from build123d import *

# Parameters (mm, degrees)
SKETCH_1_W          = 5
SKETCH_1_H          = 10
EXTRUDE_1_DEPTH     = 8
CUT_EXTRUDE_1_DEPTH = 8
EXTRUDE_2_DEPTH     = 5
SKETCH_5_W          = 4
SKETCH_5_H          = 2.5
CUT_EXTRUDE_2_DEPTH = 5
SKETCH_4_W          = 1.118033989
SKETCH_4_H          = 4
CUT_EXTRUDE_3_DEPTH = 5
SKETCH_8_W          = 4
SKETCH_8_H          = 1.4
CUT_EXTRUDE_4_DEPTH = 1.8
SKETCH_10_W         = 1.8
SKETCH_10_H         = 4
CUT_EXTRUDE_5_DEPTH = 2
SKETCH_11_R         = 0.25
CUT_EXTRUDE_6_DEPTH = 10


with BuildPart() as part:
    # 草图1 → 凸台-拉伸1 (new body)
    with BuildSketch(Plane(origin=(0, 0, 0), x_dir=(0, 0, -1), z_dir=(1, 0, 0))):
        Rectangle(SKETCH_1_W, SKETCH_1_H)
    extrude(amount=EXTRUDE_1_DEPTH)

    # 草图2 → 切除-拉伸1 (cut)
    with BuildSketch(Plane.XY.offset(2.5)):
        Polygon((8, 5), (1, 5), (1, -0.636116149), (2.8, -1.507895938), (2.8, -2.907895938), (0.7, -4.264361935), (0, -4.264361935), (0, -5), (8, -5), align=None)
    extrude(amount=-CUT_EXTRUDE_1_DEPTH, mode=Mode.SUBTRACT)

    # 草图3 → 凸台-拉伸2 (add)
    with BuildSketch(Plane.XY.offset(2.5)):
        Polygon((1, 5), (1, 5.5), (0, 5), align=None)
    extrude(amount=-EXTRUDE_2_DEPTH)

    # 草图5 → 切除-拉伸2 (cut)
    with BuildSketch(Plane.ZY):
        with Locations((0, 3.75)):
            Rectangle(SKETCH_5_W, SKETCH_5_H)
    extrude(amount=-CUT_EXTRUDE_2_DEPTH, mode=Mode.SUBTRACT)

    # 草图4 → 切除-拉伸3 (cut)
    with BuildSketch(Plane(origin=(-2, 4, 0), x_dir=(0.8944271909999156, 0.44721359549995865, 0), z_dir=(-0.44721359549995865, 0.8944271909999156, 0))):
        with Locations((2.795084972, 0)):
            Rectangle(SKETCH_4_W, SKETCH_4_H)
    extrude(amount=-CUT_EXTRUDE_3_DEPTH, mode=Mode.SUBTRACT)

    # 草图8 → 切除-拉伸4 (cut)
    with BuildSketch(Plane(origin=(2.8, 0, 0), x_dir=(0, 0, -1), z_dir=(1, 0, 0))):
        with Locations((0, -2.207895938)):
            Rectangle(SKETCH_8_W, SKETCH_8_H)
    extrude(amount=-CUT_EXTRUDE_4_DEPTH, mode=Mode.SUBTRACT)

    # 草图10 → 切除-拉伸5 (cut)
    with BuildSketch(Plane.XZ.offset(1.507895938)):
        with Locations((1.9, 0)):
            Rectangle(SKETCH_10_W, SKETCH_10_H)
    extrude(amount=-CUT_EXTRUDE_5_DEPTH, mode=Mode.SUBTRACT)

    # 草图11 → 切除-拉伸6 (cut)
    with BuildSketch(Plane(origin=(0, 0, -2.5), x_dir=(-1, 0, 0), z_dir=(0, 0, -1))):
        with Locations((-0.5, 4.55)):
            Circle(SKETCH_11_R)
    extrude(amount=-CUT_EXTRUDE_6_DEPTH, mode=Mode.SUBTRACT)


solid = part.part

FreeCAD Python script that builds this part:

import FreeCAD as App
import Part
import Sketcher
from FreeCAD import Vector


def add_polygon(sketch, points):
    """Adds a closed chain of lines whose ends are joined by coincident constraints."""
    first, n = sketch.GeometryCount, len(points)
    for a, b in zip(points, points[1:] + points[:1]):
        sketch.addGeometry(Part.LineSegment(App.Vector(*a, 0), App.Vector(*b, 0)), False)
    for i in range(n):
        sketch.addConstraint(Sketcher.Constraint("Coincident", first + i, 2, first + (i + 1) % n, 1))

doc = App.newDocument("Part")
body = doc.addObject("PartDesign::Body", "Body")

# Sketch on YZ plane
sketch1 = body.newObject("Sketcher::SketchObject", "Sketch")
sketch1.AttachmentSupport = (doc.getObject("YZ_Plane"), [""])
sketch1.MapMode = "FlatFace"
add_polygon(sketch1, [(5, 2), (-5, 2), (-5, -2), (5, -2)])  # lines 0-3
sketch1.addConstraint([
    Sketcher.Constraint("Horizontal", 0),
    Sketcher.Constraint("Vertical", 1),
    Sketcher.Constraint("Horizontal", 2),
    Sketcher.Constraint("Vertical", 3),
    Sketcher.Constraint("Symmetric", 0, 2, 2, 2, -1, 1),
    Sketcher.Constraint("DistanceX", 0, 2, 0, 1, 10.0),
    Sketcher.Constraint("DistanceY", 1, 2, 1, 1, 5.0),
])
pad1 = body.newObject("PartDesign::Pad", "Pad")
pad1.Profile = sketch1
pad1.Length = 8

# Sketch on XY plane
sketch2 = body.newObject("Sketcher::SketchObject", "Sketch001")
sketch2.AttachmentSupport = (doc.getObject("XY_Plane"), [""])
sketch2.MapMode = "FlatFace"
sketch2.AttachmentOffset = App.Placement(Vector(0, 0, 2.5), App.Rotation())
add_polygon(sketch2, [(8, 5), (1, 5), (1, -0.6), (2.8, -1.5), (2.8, -2.9), (0.7, -4.3), (0, -4.3), (0, -5), (8, -5)])  # lines 0-8
sketch2.addConstraint([
    Sketcher.Constraint("Horizontal", 0),
    Sketcher.Constraint("Vertical", 1),
    Sketcher.Constraint("Vertical", 3),
    Sketcher.Constraint("Horizontal", 5),
    Sketcher.Constraint("Vertical", 6),
    Sketcher.Constraint("Horizontal", 7),
    Sketcher.Constraint("Vertical", 8),
    Sketcher.Constraint("PointOnObject", 5, 2, -2),
    Sketcher.Constraint("DistanceX", 0, 2, 0, 1, 7.0),
    Sketcher.Constraint("DistanceX", 7, 1, 7, 2, 8.0),
    Sketcher.Constraint("DistanceY", 8, 1, 8, 2, 10.0),
    Sketcher.Constraint("Distance", 2, 2.0),
    Sketcher.Constraint("DistanceX", 5, 2, 5, 1, 0.7),
    Sketcher.Constraint("DistanceY", 3, 2, 3, 1, 1.4),
    Sketcher.Constraint("DistanceY", -1, 1, 0, 2, 5.0),
    Sketcher.Constraint("Distance", 4, 2.5),
    Sketcher.Constraint("DistanceX", -1, 1, 2, 2, 2.8),
    Sketcher.Constraint("DistanceY", 6, 2, 6, 1, 0.735638),
])
pocket1 = body.newObject("PartDesign::Pocket", "Pocket")
pocket1.Profile = sketch2
pocket1.Length = 8

# Sketch on XY plane
sketch3 = body.newObject("Sketcher::SketchObject", "Sketch002")
sketch3.AttachmentSupport = (doc.getObject("XY_Plane"), [""])
sketch3.MapMode = "FlatFace"
sketch3.AttachmentOffset = App.Placement(Vector(0, 0, 2.5), App.Rotation())
add_polygon(sketch3, [(1, 5), (1, 5.5), (0, 5)])  # lines 0-2
sketch3.addConstraint([
    Sketcher.Constraint("Vertical", 0),
    Sketcher.Constraint("Horizontal", 2),
    Sketcher.Constraint("PointOnObject", 1, 2, -2),
    Sketcher.Constraint("DistanceX", 2, 1, 2, 2, 1.0),
    Sketcher.Constraint("DistanceY", 0, 1, 0, 2, 0.5),
    Sketcher.Constraint("DistanceY", -1, 1, 1, 2, 5.0),
])
pad2 = body.newObject("PartDesign::Pad", "Pad001")
pad2.Profile = sketch3
pad2.Length = 5
pad2.Reversed = True

# Sketch on YZ plane
sketch4 = body.newObject("Sketcher::SketchObject", "Sketch003")
sketch4.AttachmentSupport = (doc.getObject("YZ_Plane"), [""])
sketch4.MapMode = "FlatFace"
add_polygon(sketch4, [(5, -2), (2.5, -2), (2.5, 2), (5, 2)])  # lines 0-3
sketch4.addConstraint([
    Sketcher.Constraint("Horizontal", 0),
    Sketcher.Constraint("Vertical", 1),
    Sketcher.Constraint("Horizontal", 2),
    Sketcher.Constraint("Vertical", 3),
    Sketcher.Constraint("DistanceY", 1, 1, 1, 2, 4.0),
    Sketcher.Constraint("DistanceX", 0, 2, 0, 1, 2.5),
    Sketcher.Constraint("DistanceY", 0, 2, -1, 1, 2.0),
    Sketcher.Constraint("DistanceX", -1, 1, 2, 2, 5.0),
])
pocket2 = body.newObject("PartDesign::Pocket", "Pocket001")
pocket2.Profile = sketch4
pocket2.Length = 5
pocket2.Reversed = True

# Sketch on an angled plane
sketch5 = body.newObject("Sketcher::SketchObject", "Sketch004")
sketch5.Placement = App.Placement(Vector(-2, 4, 0), App.Rotation(Vector(0.894427191, 0.447213595, 0), Vector(0, 0, -1), Vector(-0.447213595, 0.894427191, 0), "ZXY"))
add_polygon(sketch5, [(2.2, 2), (2.2, -2), (3.4, -2), (3.4, 2)])  # lines 0-3
sketch5.addConstraint([
    Sketcher.Constraint("Vertical", 0),
    Sketcher.Constraint("Horizontal", 1),
    Sketcher.Constraint("Vertical", 2),
    Sketcher.Constraint("Horizontal", 3),
    Sketcher.Constraint("DistanceY", 0, 2, 0, 1, 4.0),
    Sketcher.Constraint("DistanceY", 0, 2, -1, 1, 2.0),
    Sketcher.Constraint("DistanceX", -1, 1, 1, 2, 3.354102),
    Sketcher.Constraint("DistanceX", 1, 1, 1, 2, 1.118034),
])
pocket3 = body.newObject("PartDesign::Pocket", "Pocket002")
pocket3.Profile = sketch5
pocket3.Length = 5

# Sketch on YZ plane
sketch6 = body.newObject("Sketcher::SketchObject", "Sketch005")
sketch6.AttachmentSupport = (doc.getObject("YZ_Plane"), [""])
sketch6.MapMode = "FlatFace"
sketch6.AttachmentOffset = App.Placement(Vector(0, 0, 2.8), App.Rotation())
add_polygon(sketch6, [(-1.5, 2), (-2.9, 2), (-2.9, -2), (-1.5, -2)])  # lines 0-3
sketch6.addConstraint([
    Sketcher.Constraint("Horizontal", 0),
    Sketcher.Constraint("Vertical", 1),
    Sketcher.Constraint("Horizontal", 2),
    Sketcher.Constraint("Vertical", 3),
    Sketcher.Constraint("DistanceY", 1, 2, 1, 1, 4.0),
    Sketcher.Constraint("DistanceX", 0, 2, 0, 1, 1.4),
    Sketcher.Constraint("DistanceY", -1, 1, 0, 2, 2.0),
    Sketcher.Constraint("DistanceX", 0, 2, -1, 1, 2.907896),
])
pocket4 = body.newObject("PartDesign::Pocket", "Pocket003")
pocket4.Profile = sketch6
pocket4.Length = 1.8

# Sketch on XZ plane
sketch7 = body.newObject("Sketcher::SketchObject", "Sketch006")
sketch7.AttachmentSupport = (doc.getObject("XZ_Plane"), [""])
sketch7.MapMode = "FlatFace"
sketch7.AttachmentOffset = App.Placement(Vector(0, 0, 1.507896), App.Rotation())
add_polygon(sketch7, [(1, 2), (1, -2), (2.8, -2), (2.8, 2)])  # lines 0-3
sketch7.addConstraint([
    Sketcher.Constraint("Vertical", 0),
    Sketcher.Constraint("Horizontal", 1),
    Sketcher.Constraint("Vertical", 2),
    Sketcher.Constraint("Horizontal", 3),
    Sketcher.Constraint("DistanceY", 0, 2, 0, 1, 4.0),
    Sketcher.Constraint("DistanceX", 1, 1, 1, 2, 1.8),
    Sketcher.Constraint("DistanceX", -1, 1, 0, 2, 1.0),
    Sketcher.Constraint("DistanceY", 0, 2, -1, 1, 2.0),
])
pocket5 = body.newObject("PartDesign::Pocket", "Pocket004")
pocket5.Profile = sketch7
pocket5.Length = 2

# Sketch on XY plane
sketch8 = body.newObject("Sketcher::SketchObject", "Sketch007")
sketch8.AttachmentSupport = (doc.getObject("XY_Plane"), [""])
sketch8.MapMode = "FlatFace"
sketch8.AttachmentOffset = App.Placement(Vector(0, 0, -2.5), App.Rotation())
sketch8.addGeometry(Part.Circle(Vector(0.5, 4.55, 0), Vector(0, 0, 1), 0.25), False)
sketch8.addConstraint([
    Sketcher.Constraint("Diameter", 0, 0.5),
    Sketcher.Constraint("DistanceX", -1, 1, 0, 3, 0.5),
    Sketcher.Constraint("DistanceY", -1, 1, 0, 3, 4.55),
])
pocket6 = body.newObject("PartDesign::Pocket", "Pocket005")
pocket6.Profile = sketch8
pocket6.Length = 10
pocket6.Reversed = True

doc.recompute()
